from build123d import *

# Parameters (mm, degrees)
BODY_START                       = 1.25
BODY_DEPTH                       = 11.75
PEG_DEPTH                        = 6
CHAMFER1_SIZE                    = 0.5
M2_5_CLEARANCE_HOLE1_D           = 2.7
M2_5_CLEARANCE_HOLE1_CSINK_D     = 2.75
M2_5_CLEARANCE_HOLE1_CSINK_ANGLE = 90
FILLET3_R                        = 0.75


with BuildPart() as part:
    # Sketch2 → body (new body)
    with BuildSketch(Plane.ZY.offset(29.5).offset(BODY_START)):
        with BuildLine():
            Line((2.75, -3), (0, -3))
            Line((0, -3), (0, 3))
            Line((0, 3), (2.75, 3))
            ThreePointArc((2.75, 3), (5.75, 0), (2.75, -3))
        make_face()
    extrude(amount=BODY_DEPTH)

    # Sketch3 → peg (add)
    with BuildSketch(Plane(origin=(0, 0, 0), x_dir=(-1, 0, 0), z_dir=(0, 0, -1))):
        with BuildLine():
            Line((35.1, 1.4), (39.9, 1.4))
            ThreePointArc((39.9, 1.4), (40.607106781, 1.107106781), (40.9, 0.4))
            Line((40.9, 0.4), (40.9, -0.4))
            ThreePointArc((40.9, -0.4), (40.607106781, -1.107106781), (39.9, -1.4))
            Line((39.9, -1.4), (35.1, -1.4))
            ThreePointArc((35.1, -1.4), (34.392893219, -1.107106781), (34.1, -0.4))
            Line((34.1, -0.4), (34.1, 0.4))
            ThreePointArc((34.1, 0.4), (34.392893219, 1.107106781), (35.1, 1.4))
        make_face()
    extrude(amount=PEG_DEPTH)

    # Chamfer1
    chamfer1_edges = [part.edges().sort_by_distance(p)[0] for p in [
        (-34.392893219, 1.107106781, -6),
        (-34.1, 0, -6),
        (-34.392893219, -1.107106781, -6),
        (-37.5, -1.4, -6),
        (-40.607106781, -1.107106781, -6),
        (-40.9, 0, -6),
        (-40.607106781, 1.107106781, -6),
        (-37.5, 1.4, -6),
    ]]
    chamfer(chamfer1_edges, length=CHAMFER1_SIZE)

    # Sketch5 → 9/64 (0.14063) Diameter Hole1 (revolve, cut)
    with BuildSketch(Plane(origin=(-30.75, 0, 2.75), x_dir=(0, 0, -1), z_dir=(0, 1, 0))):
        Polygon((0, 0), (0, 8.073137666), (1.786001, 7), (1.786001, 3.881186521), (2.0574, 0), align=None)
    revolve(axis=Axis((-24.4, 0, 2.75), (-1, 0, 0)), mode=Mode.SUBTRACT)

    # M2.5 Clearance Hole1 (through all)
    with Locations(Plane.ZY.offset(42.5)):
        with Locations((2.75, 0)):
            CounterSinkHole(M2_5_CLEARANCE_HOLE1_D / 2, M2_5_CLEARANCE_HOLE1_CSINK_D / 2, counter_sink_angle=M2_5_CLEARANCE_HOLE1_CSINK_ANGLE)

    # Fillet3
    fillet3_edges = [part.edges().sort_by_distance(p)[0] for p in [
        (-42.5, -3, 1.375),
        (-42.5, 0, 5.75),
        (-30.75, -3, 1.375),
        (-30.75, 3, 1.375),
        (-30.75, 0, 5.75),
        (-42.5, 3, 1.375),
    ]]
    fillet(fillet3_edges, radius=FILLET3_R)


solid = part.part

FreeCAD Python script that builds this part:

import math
import FreeCAD as App
import Part
import Sketcher
from FreeCAD import Vector
Q = App.Units.Quantity


def edges_at(feature, points):
    """Names of the edges that pass closest to the given points."""
    edges = feature.Shape.Edges
    near = lambda p: min(range(len(edges)), key=lambda i: edges[i].distToShape(Part.Vertex(*p))[0])
    return sorted({f"Edge{near(p) + 1}" for p in points})

doc = App.newDocument("Part")
params = doc.addObject("Spreadsheet::Sheet", "Params")
for row, (alias, value) in enumerate([
    ("sketch1_radius", "3 mm"),
    ("sketch1_height", "2.75 mm"),
    ("pad1_length", "11.75 mm"),
    ("sketch2_radius", "1 mm"),
    ("sketch2_width", "4.8 mm"),
    ("sketch2_height", "0.8 mm"),
    ("pad2_length", "6 mm"),
    ("chamfer_size", "0.5 mm"),
    ("groove_angle", "360 deg"),
    ("sketch4_diameter", "2.7 mm"),
    ("hole_diameter", "2.7 mm"),
    ("hole_csink_diameter", "2.75 mm"),
    ("fillet_radius", "0.75 mm"),
], start=1):
    params.set(f"A{row}", alias)
    params.set(f"B{row}", "=" + value)
    params.setAlias(f"B{row}", alias)

body = doc.addObject("PartDesign::Body", "Body")

# Sketch on YZ plane
sketch1 = doc.addObject("Sketcher::SketchObject", "Sketch")
body.addObject(sketch1)
sketch1.AttachmentSupport = (doc.YZ_Plane, [""])
sketch1.MapMode = "FlatFace"
sketch1.AttachmentOffset = App.Placement(Vector(0, 0, -30.75), App.Rotation())
sketch1.addGeometry(Part.LineSegment(Vector(-3, 0, 0), Vector(-3, 2.8, 0)), False)
sketch1.addGeometry(Part.ArcOfCircle(Part.Circle(Vector(0, 2.8, 0), Vector(0, 0, 1), 3), math.radians(0), math.radians(180)), False)
sketch1.addGeometry(Part.LineSegment(Vector(3, 2.8, 0), Vector(3, 0, 0)), False)
sketch1.addGeometry(Part.LineSegment(Vector(3, 0, 0), Vector(-3, 0, 0)), False)
sketch1.addConstraint(Sketcher.Constraint("Tangent", 0, 2, 1, 2))
sketch1.addConstraint(Sketcher.Constraint("Tangent", 1, 1, 2, 1))
sketch1.addConstraint(Sketcher.Constraint("Coincident", 2, 2, 3, 1))
sketch1.addConstraint(Sketcher.Constraint("Coincident", 3, 2, 0, 1))
sketch1.addConstraint(Sketcher.Constraint("Vertical", 0))
sketch1.addConstraint(Sketcher.Constraint("Vertical", 2))
sketch1.addConstraint(Sketcher.Constraint("Horizontal", 3))
sketch1.addConstraint(Sketcher.Constraint("Symmetric", 2, 2, 3, 2, -1, 1))
sketch1.addConstraint(Sketcher.Constraint("Radius", 1, Q("3 mm")))
sketch1.addConstraint(Sketcher.Constraint("DistanceY", 0, 1, 0, 2, Q("2.75 mm")))
sketch1.setExpression("Constraints[8]", "Params.sketch1_radius")
sketch1.setExpression("Constraints[9]", "Params.sketch1_height")
pad1 = doc.addObject("PartDesign::Pad", "Pad")
body.addObject(pad1)
pad1.Profile = sketch1
pad1.setExpression("Length", "Params.pad1_length")
pad1.Reversed = True

# Sketch on XY plane
sketch2 = doc.addObject("Sketcher::SketchObject", "Sketch001")
body.addObject(sketch2)
sketch2.AttachmentSupport = (doc.XY_Plane, [""])
sketch2.MapMode = "FlatFace"
sketch2.addGeometry(Part.LineSegment(Vector(-39.9, 1.4, 0), Vector(-35.1, 1.4, 0)), False)
sketch2.addGeometry(Part.ArcOfCircle(Part.Circle(Vector(-35.1, 0.4, 0), Vector(0, 0, 1), 1), math.radians(0), math.radians(90)), False)
sketch2.addGeometry(Part.LineSegment(Vector(-34.1, 0.4, 0), Vector(-34.1, -0.4, 0)), False)
sketch2.addGeometry(Part.ArcOfCircle(Part.Circle(Vector(-35.1, -0.4, 0), Vector(0, 0, 1), 1), math.radians(-90), math.radians(0)), False)
sketch2.addGeometry(Part.LineSegment(Vector(-35.1, -1.4, 0), Vector(-39.9, -1.4, 0)), False)
sketch2.addGeometry(Part.ArcOfCircle(Part.Circle(Vector(-39.9, -0.4, 0), Vector(0, 0, 1), 1), math.radians(-180), math.radians(-90)), False)
sketch2.addGeometry(Part.LineSegment(Vector(-40.9, -0.4, 0), Vector(-40.9, 0.4, 0)), False)
sketch2.addGeometry(Part.ArcOfCircle(Part.Circle(Vector(-39.9, 0.4, 0), Vector(0, 0, 1), 1), math.radians(90), math.radians(180)), False)
sketch2.addConstraint(Sketcher.Constraint("Tangent", 0, 2, 1, 2))
sketch2.addConstraint(Sketcher.Constraint("Tangent", 1, 1, 2, 1))
sketch2.addConstraint(Sketcher.Constraint("Tangent", 2, 2, 3, 2))
sketch2.addConstraint(Sketcher.Constraint("Tangent", 3, 1, 4, 1))
sketch2.addConstraint(Sketcher.Constraint("Tangent", 4, 2, 5, 2))
sketch2.addConstraint(Sketcher.Constraint("Tangent", 5, 1, 6, 1))
sketch2.addConstraint(Sketcher.Constraint("Tangent", 6, 2, 7, 2))
sketch2.addConstraint(Sketcher.Constraint("Tangent", 7, 1, 0, 1))
sketch2.addConstraint(Sketcher.Constraint("Horizontal", 0))
sketch2.addConstraint(Sketcher.Constraint("Vertical", 2))
sketch2.addConstraint(Sketcher.Constraint("Horizontal", 4))
sketch2.addConstraint(Sketcher.Constraint("Vertical", 6))
sketch2.addConstraint(Sketcher.Constraint("Equal", 1, 3))
sketch2.addConstraint(Sketcher.Constraint("Equal", 3, 5))
sketch2.addConstraint(Sketcher.Constraint("Equal", 5, 7))
sketch2.addConstraint(Sketcher.Constraint("Radius", 1, Q("1 mm")))
sketch2.addConstraint(Sketcher.Constraint("DistanceX", 0, 1, 0, 2, Q("4.8 mm")))
sketch2.addConstraint(Sketcher.Constraint("DistanceY", 2, 2, 2, 1, Q("0.8 mm")))
sketch2.addConstraint(Sketcher.Constraint("DistanceX", 1, 3, -1, 1, Q("35.1 mm")))
sketch2.addConstraint(Sketcher.Constraint("DistanceY", -1, 1, 1, 3, Q("0.4 mm")))
sketch2.setExpression("Constraints[15]", "Params.sketch2_radius")
sketch2.setExpression("Constraints[16]", "Params.sketch2_width")
sketch2.setExpression("Constraints[17]", "Params.sketch2_height")
pad2 = doc.addObject("PartDesign::Pad", "Pad001")
body.addObject(pad2)
pad2.Profile = sketch2
pad2.setExpression("Length", "Params.pad2_length")
pad2.Reversed = True
doc.recompute()

chamfer = doc.addObject("PartDesign::Chamfer", "Chamfer")
body.addObject(chamfer)
chamfer.Base = (pad2, edges_at(pad2, [
    (-34.393, 1.107, -6),
    (-34.1, 0, -6),
    (-34.393, -1.107, -6),
    (-37.5, -1.4, -6),
    (-40.607, -1.107, -6),
    (-40.9, 0, -6),
    (-40.607, 1.107, -6),
    (-37.5, 1.4, -6),
]))
chamfer.setExpression("Size", "Params.chamfer_size")

# Sketch on XZ plane
sketch3 = doc.addObject("Sketcher::SketchObject", "Sketch002")
body.addObject(sketch3)
sketch3.AttachmentSupport = (doc.XZ_Plane, [""])
sketch3.MapMode = "FlatFace"
sketch3.addGeometry(Part.LineSegment(Vector(-38.8, 2.8, 0), Vector(-30.8, 2.8, 0)), False)
sketch3.addGeometry(Part.LineSegment(Vector(-30.8, 2.8, 0), Vector(-30.8, 0.7, 0)), False)
sketch3.addGeometry(Part.LineSegment(Vector(-30.8, 0.7, 0), Vector(-34.6, 1, 0)), False)
sketch3.addGeometry(Part.LineSegment(Vector(-34.6, 1, 0), Vector(-37.8, 1, 0)), False)
sketch3.addGeometry(Part.LineSegment(Vector(-37.8, 1, 0), Vector(-38.8, 2.8, 0)), False)
sketch3.addGeometry(Part.LineSegment(Vector(-30.8, 2.8, 0), Vector(-38.8, 2.8, 0)), True)  # axis
sketch3.addConstraint(Sketcher.Constraint("Coincident", 0, 2, 1, 1))
sketch3.addConstraint(Sketcher.Constraint("Coincident", 1, 2, 2, 1))
sketch3.addConstraint(Sketcher.Constraint("Coincident", 2, 2, 3, 1))
sketch3.addConstraint(Sketcher.Constraint("Coincident", 3, 2, 4, 1))
sketch3.addConstraint(Sketcher.Constraint("Coincident", 4, 2, 0, 1))
sketch3.addConstraint(Sketcher.Constraint("Horizontal", 0))
sketch3.addConstraint(Sketcher.Constraint("Vertical", 1))
sketch3.addConstraint(Sketcher.Constraint("Horizontal", 3))
sketch3.addConstraint(Sketcher.Constraint("Horizontal", 5))
sketch3.addConstraint(Sketcher.Constraint("Coincident", 5, 1, 0, 2))
sketch3.addConstraint(Sketcher.Constraint("Equal", 0, 5))
sketch3.addConstraint(Sketcher.Constraint("Angle", 2, Q("176 deg")))
sketch3.addConstraint(Sketcher.Constraint("Angle", 4, Q("121 deg")))
sketch3.addConstraint(Sketcher.Constraint("DistanceX", 3, 2, 1, 2, Q("7 mm")))
sketch3.addConstraint(Sketcher.Constraint("DistanceX", 0, 2, -1, 1, Q("30.75 mm")))
sketch3.addConstraint(Sketcher.Constraint("DistanceY", -1, 1, 0, 2, Q("2.75 mm")))
sketch3.addConstraint(Sketcher.Constraint("DistanceY", 1, 2, 1, 1, Q("2.0574 mm")))
sketch3.addConstraint(Sketcher.Constraint("DistanceY", -1, 1, 2, 2, Q("0.963999 mm")))
groove = doc.addObject("PartDesign::Groove", "Groove")
body.addObject(groove)
groove.Profile = sketch3
groove.ReferenceAxis = (sketch3, ["Axis0"])
groove.setExpression("Angle", "Params.groove_angle")

# Sketch on YZ plane
sketch4 = doc.addObject("Sketcher::SketchObject", "Sketch003")
body.addObject(sketch4)
sketch4.AttachmentSupport = (doc.YZ_Plane, [""])
sketch4.MapMode = "FlatFace"
sketch4.AttachmentOffset = App.Placement(Vector(0, 0, -42.5), App.Rotation())
sketch4.addGeometry(Part.Circle(Vector(0, 2.8, 0), Vector(0, 0, 1), 1.4), False)
sketch4.addConstraint(Sketcher.Constraint("PointOnObject", 0, 3, -2))
sketch4.addConstraint(Sketcher.Constraint("Diameter", 0, Q("2.7 mm")))
sketch4.addConstraint(Sketcher.Constraint("DistanceY", -1, 1, 0, 3, Q("2.75 mm")))
sketch4.setExpression("Constraints[1]", "Params.sketch4_diameter")
doc.recompute()
hole = doc.addObject("PartDesign::Hole", "Hole")
body.addObject(hole)
hole.Profile = sketch4
hole.ThreadType = "None"
hole.setExpression("Diameter", "Params.hole_diameter")
hole.DepthType = "ThroughAll"
hole.HoleCutType = "Countersink"
hole.setExpression("HoleCutDiameter", "Params.hole_csink_diameter")
hole.HoleCutCountersinkAngle = 90
hole.Reversed = True
doc.recompute()

fillet = doc.addObject("PartDesign::Fillet", "Fillet")
body.addObject(fillet)
fillet.Base = (hole, edges_at(hole, [
    (-42.5, -3, 1.375),
    (-42.5, 0, 5.75),
    (-30.75, -3, 1.375),
    (-30.75, 3, 1.375),
    (-30.75, 0, 5.75),
    (-42.5, 3, 1.375),
]))
fillet.setExpression("Radius", "Params.fillet_radius")

doc.recompute()
